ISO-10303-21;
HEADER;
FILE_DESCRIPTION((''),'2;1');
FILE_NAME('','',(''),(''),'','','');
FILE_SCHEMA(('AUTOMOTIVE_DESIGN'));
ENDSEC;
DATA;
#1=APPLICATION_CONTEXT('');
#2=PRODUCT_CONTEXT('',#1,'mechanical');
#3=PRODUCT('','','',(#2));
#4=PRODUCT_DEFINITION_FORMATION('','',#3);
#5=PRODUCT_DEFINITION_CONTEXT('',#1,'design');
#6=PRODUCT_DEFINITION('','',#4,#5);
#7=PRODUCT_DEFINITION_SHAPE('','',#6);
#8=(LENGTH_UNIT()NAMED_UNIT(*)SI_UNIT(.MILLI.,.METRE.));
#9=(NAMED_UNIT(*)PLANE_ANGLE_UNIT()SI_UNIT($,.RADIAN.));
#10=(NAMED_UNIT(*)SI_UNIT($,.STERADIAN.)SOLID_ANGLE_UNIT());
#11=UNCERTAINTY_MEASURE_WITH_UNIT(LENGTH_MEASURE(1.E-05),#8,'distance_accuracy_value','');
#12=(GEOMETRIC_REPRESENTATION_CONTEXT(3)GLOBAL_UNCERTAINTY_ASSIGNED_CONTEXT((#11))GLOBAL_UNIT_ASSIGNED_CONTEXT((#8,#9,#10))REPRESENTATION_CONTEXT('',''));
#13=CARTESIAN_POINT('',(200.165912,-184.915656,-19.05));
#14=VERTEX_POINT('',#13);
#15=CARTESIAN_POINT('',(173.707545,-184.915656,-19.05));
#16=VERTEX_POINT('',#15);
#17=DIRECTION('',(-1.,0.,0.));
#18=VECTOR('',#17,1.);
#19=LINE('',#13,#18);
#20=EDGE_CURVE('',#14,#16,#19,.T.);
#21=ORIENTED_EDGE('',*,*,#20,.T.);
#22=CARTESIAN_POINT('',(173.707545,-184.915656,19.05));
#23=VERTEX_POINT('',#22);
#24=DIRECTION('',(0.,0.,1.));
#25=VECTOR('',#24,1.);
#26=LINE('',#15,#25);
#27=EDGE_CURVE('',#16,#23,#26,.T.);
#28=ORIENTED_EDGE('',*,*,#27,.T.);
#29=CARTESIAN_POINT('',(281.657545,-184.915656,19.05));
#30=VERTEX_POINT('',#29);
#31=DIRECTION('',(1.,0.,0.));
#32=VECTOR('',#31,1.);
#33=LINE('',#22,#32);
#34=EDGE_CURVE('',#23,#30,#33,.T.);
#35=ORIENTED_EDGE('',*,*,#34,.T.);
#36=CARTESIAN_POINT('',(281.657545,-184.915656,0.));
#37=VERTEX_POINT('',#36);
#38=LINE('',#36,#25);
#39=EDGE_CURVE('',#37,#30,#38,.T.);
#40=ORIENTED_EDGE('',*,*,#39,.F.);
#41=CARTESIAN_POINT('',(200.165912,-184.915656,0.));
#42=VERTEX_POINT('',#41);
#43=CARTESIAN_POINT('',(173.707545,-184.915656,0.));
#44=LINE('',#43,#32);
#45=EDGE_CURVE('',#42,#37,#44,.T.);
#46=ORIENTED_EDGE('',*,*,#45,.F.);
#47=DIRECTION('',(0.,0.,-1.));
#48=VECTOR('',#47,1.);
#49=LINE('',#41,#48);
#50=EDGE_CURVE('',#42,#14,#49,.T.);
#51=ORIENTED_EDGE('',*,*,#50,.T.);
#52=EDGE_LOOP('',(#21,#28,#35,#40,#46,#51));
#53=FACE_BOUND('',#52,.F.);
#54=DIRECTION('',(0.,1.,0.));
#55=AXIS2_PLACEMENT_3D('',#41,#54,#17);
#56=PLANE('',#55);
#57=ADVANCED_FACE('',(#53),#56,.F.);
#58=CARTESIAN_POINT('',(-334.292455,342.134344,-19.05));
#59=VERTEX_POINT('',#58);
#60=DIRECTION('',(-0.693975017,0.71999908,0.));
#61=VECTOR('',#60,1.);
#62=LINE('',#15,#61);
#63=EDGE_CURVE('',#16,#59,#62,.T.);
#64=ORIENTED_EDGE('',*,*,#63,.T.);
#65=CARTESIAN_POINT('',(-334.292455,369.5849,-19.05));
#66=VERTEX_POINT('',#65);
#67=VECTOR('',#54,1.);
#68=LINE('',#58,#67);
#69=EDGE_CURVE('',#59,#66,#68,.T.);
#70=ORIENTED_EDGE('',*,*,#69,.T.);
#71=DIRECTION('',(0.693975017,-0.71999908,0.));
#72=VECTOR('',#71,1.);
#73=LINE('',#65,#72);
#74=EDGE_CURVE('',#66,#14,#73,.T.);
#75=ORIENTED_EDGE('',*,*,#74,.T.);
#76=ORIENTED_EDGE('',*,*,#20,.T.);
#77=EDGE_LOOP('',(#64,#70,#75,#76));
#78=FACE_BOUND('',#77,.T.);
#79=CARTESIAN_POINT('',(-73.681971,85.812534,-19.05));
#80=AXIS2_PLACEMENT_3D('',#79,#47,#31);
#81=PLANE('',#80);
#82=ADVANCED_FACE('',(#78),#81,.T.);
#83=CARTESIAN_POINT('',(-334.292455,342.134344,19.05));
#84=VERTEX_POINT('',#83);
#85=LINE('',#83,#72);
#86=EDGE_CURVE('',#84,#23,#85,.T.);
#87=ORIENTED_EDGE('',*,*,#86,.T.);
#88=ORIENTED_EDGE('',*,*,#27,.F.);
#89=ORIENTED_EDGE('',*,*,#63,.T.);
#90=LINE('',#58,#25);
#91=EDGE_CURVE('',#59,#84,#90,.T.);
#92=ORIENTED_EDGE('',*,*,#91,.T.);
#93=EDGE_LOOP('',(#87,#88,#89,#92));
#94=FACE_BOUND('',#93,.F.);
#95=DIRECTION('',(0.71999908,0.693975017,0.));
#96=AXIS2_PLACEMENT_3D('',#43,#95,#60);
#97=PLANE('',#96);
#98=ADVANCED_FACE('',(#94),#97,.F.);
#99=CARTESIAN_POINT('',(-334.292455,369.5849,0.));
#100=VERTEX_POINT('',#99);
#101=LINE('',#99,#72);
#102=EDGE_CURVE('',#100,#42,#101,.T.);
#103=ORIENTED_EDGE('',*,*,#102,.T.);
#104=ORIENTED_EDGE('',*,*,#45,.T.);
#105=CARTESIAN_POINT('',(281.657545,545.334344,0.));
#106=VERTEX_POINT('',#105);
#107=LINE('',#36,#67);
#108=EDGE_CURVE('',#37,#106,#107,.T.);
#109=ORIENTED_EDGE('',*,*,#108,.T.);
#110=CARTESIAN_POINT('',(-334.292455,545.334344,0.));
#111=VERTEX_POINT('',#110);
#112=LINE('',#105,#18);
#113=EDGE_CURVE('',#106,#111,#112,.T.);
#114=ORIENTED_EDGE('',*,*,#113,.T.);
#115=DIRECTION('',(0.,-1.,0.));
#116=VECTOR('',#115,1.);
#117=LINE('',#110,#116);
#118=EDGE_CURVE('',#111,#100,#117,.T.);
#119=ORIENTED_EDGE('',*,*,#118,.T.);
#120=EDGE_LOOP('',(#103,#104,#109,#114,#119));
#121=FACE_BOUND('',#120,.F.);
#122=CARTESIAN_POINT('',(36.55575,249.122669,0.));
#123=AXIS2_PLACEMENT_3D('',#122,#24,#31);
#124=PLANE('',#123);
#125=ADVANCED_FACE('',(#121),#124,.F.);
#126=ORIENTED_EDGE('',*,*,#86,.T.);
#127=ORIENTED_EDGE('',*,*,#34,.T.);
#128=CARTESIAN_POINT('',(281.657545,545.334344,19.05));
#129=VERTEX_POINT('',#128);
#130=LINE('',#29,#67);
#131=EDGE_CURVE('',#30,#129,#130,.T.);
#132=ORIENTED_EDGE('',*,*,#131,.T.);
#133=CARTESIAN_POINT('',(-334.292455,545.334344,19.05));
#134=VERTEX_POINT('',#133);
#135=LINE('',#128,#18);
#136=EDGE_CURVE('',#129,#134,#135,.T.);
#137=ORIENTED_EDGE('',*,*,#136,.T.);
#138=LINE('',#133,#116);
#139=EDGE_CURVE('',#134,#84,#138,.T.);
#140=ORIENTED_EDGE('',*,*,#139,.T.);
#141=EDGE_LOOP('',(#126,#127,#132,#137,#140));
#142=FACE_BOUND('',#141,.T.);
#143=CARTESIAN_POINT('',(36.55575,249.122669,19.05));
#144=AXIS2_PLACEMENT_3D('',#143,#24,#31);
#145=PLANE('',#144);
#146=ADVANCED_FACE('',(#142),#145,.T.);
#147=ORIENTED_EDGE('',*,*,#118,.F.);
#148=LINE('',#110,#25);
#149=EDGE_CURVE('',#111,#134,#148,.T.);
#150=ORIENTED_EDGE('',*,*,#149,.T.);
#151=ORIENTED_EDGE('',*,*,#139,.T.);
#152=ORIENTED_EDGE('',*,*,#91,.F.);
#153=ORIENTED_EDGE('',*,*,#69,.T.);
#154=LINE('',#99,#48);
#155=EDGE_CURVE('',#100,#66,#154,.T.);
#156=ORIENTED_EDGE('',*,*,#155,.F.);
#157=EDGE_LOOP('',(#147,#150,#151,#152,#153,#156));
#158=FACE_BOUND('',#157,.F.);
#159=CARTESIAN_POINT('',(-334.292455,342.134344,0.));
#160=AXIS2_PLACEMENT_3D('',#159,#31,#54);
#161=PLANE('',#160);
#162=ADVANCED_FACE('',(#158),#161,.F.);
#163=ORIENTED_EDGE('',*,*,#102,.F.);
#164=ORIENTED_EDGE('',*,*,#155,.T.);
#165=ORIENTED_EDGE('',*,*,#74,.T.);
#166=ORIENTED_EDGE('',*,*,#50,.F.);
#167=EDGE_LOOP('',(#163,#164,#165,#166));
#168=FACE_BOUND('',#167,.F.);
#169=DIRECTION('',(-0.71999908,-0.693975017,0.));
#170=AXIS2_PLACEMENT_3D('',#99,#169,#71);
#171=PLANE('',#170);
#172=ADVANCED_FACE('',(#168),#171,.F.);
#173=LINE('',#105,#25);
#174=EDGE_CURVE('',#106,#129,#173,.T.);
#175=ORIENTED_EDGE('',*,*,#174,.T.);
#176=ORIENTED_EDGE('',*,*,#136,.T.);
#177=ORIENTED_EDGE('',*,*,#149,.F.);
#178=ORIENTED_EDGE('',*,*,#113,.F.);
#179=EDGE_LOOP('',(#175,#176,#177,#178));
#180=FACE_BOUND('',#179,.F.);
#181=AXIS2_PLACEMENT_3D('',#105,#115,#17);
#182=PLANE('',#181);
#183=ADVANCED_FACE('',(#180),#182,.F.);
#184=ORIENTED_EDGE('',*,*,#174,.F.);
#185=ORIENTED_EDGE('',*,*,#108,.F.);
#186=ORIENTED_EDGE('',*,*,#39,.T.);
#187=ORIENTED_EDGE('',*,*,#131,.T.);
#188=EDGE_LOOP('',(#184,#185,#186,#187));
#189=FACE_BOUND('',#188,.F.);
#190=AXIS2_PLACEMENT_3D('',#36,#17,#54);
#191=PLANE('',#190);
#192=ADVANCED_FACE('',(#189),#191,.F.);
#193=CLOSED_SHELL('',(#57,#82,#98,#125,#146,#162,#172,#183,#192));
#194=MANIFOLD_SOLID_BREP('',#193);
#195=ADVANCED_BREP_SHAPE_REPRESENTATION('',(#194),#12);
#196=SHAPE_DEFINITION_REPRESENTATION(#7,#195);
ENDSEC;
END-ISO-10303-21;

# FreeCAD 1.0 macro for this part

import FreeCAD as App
import Part
import Sketcher
from FreeCAD import Vector
Q = App.Units.Quantity


def add_polygon(sketch, points):
    """Adds a closed chain of lines whose ends are joined by coincident constraints."""
    first, n = sketch.GeometryCount, len(points)
    for a, b in zip(points, points[1:] + points[:1]):
        sketch.addGeometry(Part.LineSegment(App.Vector(*a, 0), App.Vector(*b, 0)), False)
    for i in range(n):
        sketch.addConstraint(Sketcher.Constraint("Coincident", first + i, 2, first + (i + 1) % n, 1))

doc = App.newDocument("Part")
params = doc.addObject("Spreadsheet::Sheet", "Params")
for row, (alias, value) in enumerate([
    ("sketch1_height", "8 in"),
    ("sketch1_width", "24.25 in"),
    ("sketch1_height2", "28.75 in"),
    ("pad1_length", "0.75 in"),
    ("pad2_length", "0.75 in"),
], start=1):
    params.set(f"A{row}", alias)
    params.set(f"B{row}", "=" + value)
    params.setAlias(f"B{row}", alias)

body = doc.addObject("PartDesign::Body", "Body")

# Sketch on XY plane
sketch1 = body.newObject("Sketcher::SketchObject", "Sketch")
sketch1.AttachmentSupport = (doc.getObject("XY_Plane"), [""])
sketch1.MapMode = "FlatFace"
add_polygon(sketch1, [(282, 545), (-334, 545), (-334, 342), (174, -185), (282, -185)])  # lines 0-4
sketch1.addConstraint([
    Sketcher.Constraint("Horizontal", 0),
    Sketcher.Constraint("Vertical", 1),
    Sketcher.Constraint("Horizontal", 3),
    Sketcher.Constraint("Vertical", 4),
    Sketcher.Constraint("DistanceY", 1, 2, 1, 1, Q("8 in")),
    Sketcher.Constraint("DistanceX", 1, 2, 2, 2, Q("20 in")),
    Sketcher.Constraint("DistanceX", 0, 2, 0, 1, Q("24.25 in")),
    Sketcher.Constraint("DistanceY", 4, 1, 4, 2, Q("28.75 in")),
    Sketcher.Constraint("DistanceX", 0, 2, -1, 1, Q("334.292455 mm")),
    Sketcher.Constraint("DistanceY", -1, 1, 0, 2, Q("545.334344 mm")),
])
sketch1.setExpression("Constraints[9]", "Params.sketch1_height")
sketch1.setExpression("Constraints[11]", "Params.sketch1_width")
sketch1.setExpression("Constraints[12]", "Params.sketch1_height2")
pad1 = body.newObject("PartDesign::Pad", "Pad")
pad1.Profile = sketch1
pad1.setExpression("Length", "Params.pad1_length")

# Sketch on XY plane
sketch2 = body.newObject("Sketcher::SketchObject", "Sketch001")
sketch2.AttachmentSupport = (doc.getObject("XY_Plane"), [""])
sketch2.MapMode = "FlatFace"
add_polygon(sketch2, [(-334, 342), (-334, 370), (200, -185), (174, -185)])  # lines 0-3
sketch2.addConstraint([
    Sketcher.Constraint("Vertical", 0),
    Sketcher.Constraint("Horizontal", 2),
    Sketcher.Constraint("Parallel", 1, 3),
    Sketcher.Constraint("DistanceX", 0, 2, 2, 2, Q("20 in")),
    Sketcher.Constraint("DistanceY", 2, 2, 3, 2, Q("20.75 in")),
    Sketcher.Constraint("DistanceY", -1, 1, 0, 2, Q("369.5849 mm")),
    Sketcher.Constraint("DistanceX", 2, 2, 2, 1, Q("26.458367 mm")),
    Sketcher.Constraint("DistanceX", -1, 1, 1, 2, Q("200.165912 mm")),
])
pad2 = body.newObject("PartDesign::Pad", "Pad001")
pad2.Profile = sketch2
pad2.setExpression("Length", "Params.pad2_length")
pad2.Reversed = True

doc.recompute()
